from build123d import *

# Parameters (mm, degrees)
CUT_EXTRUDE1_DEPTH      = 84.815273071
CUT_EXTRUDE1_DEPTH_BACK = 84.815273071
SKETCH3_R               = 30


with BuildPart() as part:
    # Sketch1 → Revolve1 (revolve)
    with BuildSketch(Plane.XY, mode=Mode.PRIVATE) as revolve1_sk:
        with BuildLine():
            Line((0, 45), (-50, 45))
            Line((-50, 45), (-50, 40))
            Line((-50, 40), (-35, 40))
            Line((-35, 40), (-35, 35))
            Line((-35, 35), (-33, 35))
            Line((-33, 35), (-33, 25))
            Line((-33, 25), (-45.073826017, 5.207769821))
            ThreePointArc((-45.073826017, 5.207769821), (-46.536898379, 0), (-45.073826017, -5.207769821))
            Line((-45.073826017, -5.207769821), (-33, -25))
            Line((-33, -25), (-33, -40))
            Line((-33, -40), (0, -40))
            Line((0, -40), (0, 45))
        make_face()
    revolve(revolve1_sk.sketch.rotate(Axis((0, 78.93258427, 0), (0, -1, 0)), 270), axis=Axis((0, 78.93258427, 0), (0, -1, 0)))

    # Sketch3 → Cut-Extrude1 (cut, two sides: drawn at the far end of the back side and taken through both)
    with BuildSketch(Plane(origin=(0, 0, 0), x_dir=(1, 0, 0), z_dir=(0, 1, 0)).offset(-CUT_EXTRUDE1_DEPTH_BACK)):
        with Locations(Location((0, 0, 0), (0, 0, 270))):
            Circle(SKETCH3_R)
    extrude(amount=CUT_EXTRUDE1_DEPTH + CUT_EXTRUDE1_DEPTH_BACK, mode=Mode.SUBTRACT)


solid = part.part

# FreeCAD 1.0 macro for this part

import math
import FreeCAD as App
import Part
import Sketcher
from FreeCAD import Vector

doc = App.newDocument("Part")
body = doc.addObject("PartDesign::Body", "Body")

# Sketch on XY plane
sketch1 = doc.addObject("Sketcher::SketchObject", "Sketch")
body.addObject(sketch1)
sketch1.AttachmentSupport = (doc.XY_Plane, [""])
sketch1.MapMode = "FlatFace"
sketch1.addGeometry([
    Part.LineSegment(Vector(0, 45, 0), Vector(-50, 45, 0)),  # 0
    Part.LineSegment(Vector(-50, 45, 0), Vector(-50, 40, 0)),  # 1
    Part.LineSegment(Vector(-50, 40, 0), Vector(-35, 40, 0)),  # 2
    Part.LineSegment(Vector(-35, 40, 0), Vector(-35, 35, 0)),  # 3
    Part.LineSegment(Vector(-35, 35, 0), Vector(-33, 35, 0)),  # 4
    Part.LineSegment(Vector(-33, 35, 0), Vector(-33, 25, 0)),  # 5
    Part.LineSegment(Vector(-33, 25, 0), Vector(-45.1, 5.2, 0)),  # 6
    Part.ArcOfCircle(Part.Circle(Vector(-36.5, 0, 0), Vector(0, 0, 1), 10), math.radians(149), math.radians(211)),  # 7
    Part.LineSegment(Vector(-45.1, -5.2, 0), Vector(-33, -25, 0)),  # 8
    Part.LineSegment(Vector(-33, -25, 0), Vector(-33, -40, 0)),  # 9
    Part.LineSegment(Vector(-33, -40, 0), Vector(0, -40, 0)),  # 10
    Part.LineSegment(Vector(0, -40, 0), Vector(0, 45, 0)),  # 11
], False)
sketch1.addConstraint([
    Sketcher.Constraint("Coincident", 0, 2, 1, 1),
    Sketcher.Constraint("Coincident", 1, 2, 2, 1),
    Sketcher.Constraint("Coincident", 2, 2, 3, 1),
    Sketcher.Constraint("Coincident", 3, 2, 4, 1),
    Sketcher.Constraint("Coincident", 4, 2, 5, 1),
    Sketcher.Constraint("Coincident", 5, 2, 6, 1),
    Sketcher.Constraint("Tangent", 6, 2, 7, 1),
    Sketcher.Constraint("Tangent", 7, 2, 8, 1),
    Sketcher.Constraint("Coincident", 8, 2, 9, 1),
    Sketcher.Constraint("Coincident", 9, 2, 10, 1),
    Sketcher.Constraint("Coincident", 10, 2, 11, 1),
    Sketcher.Constraint("Coincident", 11, 2, 0, 1),
    Sketcher.Constraint("Horizontal", 0),
    Sketcher.Constraint("Vertical", 1),
    Sketcher.Constraint("Horizontal", 2),
    Sketcher.Constraint("Vertical", 3),
    Sketcher.Constraint("Horizontal", 4),
    Sketcher.Constraint("Vertical", 5),
    Sketcher.Constraint("Vertical", 9),
    Sketcher.Constraint("Horizontal", 10),
    Sketcher.Constraint("Vertical", 11),
    Sketcher.Constraint("Symmetric", 6, 2, 7, 2, -1),
    Sketcher.Constraint("PointOnObject", 10, 2, -2),
    Sketcher.Constraint("Vertical", 5, 2, 8, 2),
    Sketcher.Constraint("Equal", 1, 3),
    Sketcher.Constraint("Equal", 2, 9),
    Sketcher.Constraint("Radius", 7, 10.0),
    Sketcher.Constraint("DistanceX", 0, 2, 0, 1, 50.0),
    Sketcher.Constraint("DistanceX", 2, 1, 2, 2, 15.0),
    Sketcher.Constraint("DistanceX", 4, 1, 4, 2, 2.0),
    Sketcher.Constraint("DistanceY", 1, 2, 1, 1, 5.0),
    Sketcher.Constraint("DistanceY", 5, 2, 5, 1, 10.0),
    Sketcher.Constraint("DistanceY", 11, 1, 11, 2, 85.0),
    Sketcher.Constraint("DistanceX", 7, 3, -1, 1, 36.536898),
])
revolution = doc.addObject("PartDesign::Revolution", "Revolution")
body.addObject(revolution)
revolution.Profile = sketch1
revolution.ReferenceAxis = (sketch1, ["V_Axis"])
revolution.Angle = 360

# Sketch on XZ plane
sketch2 = doc.addObject("Sketcher::SketchObject", "Sketch001")
body.addObject(sketch2)
sketch2.AttachmentSupport = (doc.XZ_Plane, [""])
sketch2.MapMode = "FlatFace"
sketch2.addGeometry(Part.Circle(Vector(0, 0, 0), Vector(0, 0, 1), 30), False)
sketch2.addConstraint([
    Sketcher.Constraint("Coincident", 0, 3, -1, 1),
    Sketcher.Constraint("Diameter", 0, 60.0),
])
pocket1 = doc.addObject("PartDesign::Pocket", "Pocket")
body.addObject(pocket1)
pocket1.Profile = sketch2
pocket1.Type = "ThroughAll"
pocket1.Midplane = True

doc.recompute()
